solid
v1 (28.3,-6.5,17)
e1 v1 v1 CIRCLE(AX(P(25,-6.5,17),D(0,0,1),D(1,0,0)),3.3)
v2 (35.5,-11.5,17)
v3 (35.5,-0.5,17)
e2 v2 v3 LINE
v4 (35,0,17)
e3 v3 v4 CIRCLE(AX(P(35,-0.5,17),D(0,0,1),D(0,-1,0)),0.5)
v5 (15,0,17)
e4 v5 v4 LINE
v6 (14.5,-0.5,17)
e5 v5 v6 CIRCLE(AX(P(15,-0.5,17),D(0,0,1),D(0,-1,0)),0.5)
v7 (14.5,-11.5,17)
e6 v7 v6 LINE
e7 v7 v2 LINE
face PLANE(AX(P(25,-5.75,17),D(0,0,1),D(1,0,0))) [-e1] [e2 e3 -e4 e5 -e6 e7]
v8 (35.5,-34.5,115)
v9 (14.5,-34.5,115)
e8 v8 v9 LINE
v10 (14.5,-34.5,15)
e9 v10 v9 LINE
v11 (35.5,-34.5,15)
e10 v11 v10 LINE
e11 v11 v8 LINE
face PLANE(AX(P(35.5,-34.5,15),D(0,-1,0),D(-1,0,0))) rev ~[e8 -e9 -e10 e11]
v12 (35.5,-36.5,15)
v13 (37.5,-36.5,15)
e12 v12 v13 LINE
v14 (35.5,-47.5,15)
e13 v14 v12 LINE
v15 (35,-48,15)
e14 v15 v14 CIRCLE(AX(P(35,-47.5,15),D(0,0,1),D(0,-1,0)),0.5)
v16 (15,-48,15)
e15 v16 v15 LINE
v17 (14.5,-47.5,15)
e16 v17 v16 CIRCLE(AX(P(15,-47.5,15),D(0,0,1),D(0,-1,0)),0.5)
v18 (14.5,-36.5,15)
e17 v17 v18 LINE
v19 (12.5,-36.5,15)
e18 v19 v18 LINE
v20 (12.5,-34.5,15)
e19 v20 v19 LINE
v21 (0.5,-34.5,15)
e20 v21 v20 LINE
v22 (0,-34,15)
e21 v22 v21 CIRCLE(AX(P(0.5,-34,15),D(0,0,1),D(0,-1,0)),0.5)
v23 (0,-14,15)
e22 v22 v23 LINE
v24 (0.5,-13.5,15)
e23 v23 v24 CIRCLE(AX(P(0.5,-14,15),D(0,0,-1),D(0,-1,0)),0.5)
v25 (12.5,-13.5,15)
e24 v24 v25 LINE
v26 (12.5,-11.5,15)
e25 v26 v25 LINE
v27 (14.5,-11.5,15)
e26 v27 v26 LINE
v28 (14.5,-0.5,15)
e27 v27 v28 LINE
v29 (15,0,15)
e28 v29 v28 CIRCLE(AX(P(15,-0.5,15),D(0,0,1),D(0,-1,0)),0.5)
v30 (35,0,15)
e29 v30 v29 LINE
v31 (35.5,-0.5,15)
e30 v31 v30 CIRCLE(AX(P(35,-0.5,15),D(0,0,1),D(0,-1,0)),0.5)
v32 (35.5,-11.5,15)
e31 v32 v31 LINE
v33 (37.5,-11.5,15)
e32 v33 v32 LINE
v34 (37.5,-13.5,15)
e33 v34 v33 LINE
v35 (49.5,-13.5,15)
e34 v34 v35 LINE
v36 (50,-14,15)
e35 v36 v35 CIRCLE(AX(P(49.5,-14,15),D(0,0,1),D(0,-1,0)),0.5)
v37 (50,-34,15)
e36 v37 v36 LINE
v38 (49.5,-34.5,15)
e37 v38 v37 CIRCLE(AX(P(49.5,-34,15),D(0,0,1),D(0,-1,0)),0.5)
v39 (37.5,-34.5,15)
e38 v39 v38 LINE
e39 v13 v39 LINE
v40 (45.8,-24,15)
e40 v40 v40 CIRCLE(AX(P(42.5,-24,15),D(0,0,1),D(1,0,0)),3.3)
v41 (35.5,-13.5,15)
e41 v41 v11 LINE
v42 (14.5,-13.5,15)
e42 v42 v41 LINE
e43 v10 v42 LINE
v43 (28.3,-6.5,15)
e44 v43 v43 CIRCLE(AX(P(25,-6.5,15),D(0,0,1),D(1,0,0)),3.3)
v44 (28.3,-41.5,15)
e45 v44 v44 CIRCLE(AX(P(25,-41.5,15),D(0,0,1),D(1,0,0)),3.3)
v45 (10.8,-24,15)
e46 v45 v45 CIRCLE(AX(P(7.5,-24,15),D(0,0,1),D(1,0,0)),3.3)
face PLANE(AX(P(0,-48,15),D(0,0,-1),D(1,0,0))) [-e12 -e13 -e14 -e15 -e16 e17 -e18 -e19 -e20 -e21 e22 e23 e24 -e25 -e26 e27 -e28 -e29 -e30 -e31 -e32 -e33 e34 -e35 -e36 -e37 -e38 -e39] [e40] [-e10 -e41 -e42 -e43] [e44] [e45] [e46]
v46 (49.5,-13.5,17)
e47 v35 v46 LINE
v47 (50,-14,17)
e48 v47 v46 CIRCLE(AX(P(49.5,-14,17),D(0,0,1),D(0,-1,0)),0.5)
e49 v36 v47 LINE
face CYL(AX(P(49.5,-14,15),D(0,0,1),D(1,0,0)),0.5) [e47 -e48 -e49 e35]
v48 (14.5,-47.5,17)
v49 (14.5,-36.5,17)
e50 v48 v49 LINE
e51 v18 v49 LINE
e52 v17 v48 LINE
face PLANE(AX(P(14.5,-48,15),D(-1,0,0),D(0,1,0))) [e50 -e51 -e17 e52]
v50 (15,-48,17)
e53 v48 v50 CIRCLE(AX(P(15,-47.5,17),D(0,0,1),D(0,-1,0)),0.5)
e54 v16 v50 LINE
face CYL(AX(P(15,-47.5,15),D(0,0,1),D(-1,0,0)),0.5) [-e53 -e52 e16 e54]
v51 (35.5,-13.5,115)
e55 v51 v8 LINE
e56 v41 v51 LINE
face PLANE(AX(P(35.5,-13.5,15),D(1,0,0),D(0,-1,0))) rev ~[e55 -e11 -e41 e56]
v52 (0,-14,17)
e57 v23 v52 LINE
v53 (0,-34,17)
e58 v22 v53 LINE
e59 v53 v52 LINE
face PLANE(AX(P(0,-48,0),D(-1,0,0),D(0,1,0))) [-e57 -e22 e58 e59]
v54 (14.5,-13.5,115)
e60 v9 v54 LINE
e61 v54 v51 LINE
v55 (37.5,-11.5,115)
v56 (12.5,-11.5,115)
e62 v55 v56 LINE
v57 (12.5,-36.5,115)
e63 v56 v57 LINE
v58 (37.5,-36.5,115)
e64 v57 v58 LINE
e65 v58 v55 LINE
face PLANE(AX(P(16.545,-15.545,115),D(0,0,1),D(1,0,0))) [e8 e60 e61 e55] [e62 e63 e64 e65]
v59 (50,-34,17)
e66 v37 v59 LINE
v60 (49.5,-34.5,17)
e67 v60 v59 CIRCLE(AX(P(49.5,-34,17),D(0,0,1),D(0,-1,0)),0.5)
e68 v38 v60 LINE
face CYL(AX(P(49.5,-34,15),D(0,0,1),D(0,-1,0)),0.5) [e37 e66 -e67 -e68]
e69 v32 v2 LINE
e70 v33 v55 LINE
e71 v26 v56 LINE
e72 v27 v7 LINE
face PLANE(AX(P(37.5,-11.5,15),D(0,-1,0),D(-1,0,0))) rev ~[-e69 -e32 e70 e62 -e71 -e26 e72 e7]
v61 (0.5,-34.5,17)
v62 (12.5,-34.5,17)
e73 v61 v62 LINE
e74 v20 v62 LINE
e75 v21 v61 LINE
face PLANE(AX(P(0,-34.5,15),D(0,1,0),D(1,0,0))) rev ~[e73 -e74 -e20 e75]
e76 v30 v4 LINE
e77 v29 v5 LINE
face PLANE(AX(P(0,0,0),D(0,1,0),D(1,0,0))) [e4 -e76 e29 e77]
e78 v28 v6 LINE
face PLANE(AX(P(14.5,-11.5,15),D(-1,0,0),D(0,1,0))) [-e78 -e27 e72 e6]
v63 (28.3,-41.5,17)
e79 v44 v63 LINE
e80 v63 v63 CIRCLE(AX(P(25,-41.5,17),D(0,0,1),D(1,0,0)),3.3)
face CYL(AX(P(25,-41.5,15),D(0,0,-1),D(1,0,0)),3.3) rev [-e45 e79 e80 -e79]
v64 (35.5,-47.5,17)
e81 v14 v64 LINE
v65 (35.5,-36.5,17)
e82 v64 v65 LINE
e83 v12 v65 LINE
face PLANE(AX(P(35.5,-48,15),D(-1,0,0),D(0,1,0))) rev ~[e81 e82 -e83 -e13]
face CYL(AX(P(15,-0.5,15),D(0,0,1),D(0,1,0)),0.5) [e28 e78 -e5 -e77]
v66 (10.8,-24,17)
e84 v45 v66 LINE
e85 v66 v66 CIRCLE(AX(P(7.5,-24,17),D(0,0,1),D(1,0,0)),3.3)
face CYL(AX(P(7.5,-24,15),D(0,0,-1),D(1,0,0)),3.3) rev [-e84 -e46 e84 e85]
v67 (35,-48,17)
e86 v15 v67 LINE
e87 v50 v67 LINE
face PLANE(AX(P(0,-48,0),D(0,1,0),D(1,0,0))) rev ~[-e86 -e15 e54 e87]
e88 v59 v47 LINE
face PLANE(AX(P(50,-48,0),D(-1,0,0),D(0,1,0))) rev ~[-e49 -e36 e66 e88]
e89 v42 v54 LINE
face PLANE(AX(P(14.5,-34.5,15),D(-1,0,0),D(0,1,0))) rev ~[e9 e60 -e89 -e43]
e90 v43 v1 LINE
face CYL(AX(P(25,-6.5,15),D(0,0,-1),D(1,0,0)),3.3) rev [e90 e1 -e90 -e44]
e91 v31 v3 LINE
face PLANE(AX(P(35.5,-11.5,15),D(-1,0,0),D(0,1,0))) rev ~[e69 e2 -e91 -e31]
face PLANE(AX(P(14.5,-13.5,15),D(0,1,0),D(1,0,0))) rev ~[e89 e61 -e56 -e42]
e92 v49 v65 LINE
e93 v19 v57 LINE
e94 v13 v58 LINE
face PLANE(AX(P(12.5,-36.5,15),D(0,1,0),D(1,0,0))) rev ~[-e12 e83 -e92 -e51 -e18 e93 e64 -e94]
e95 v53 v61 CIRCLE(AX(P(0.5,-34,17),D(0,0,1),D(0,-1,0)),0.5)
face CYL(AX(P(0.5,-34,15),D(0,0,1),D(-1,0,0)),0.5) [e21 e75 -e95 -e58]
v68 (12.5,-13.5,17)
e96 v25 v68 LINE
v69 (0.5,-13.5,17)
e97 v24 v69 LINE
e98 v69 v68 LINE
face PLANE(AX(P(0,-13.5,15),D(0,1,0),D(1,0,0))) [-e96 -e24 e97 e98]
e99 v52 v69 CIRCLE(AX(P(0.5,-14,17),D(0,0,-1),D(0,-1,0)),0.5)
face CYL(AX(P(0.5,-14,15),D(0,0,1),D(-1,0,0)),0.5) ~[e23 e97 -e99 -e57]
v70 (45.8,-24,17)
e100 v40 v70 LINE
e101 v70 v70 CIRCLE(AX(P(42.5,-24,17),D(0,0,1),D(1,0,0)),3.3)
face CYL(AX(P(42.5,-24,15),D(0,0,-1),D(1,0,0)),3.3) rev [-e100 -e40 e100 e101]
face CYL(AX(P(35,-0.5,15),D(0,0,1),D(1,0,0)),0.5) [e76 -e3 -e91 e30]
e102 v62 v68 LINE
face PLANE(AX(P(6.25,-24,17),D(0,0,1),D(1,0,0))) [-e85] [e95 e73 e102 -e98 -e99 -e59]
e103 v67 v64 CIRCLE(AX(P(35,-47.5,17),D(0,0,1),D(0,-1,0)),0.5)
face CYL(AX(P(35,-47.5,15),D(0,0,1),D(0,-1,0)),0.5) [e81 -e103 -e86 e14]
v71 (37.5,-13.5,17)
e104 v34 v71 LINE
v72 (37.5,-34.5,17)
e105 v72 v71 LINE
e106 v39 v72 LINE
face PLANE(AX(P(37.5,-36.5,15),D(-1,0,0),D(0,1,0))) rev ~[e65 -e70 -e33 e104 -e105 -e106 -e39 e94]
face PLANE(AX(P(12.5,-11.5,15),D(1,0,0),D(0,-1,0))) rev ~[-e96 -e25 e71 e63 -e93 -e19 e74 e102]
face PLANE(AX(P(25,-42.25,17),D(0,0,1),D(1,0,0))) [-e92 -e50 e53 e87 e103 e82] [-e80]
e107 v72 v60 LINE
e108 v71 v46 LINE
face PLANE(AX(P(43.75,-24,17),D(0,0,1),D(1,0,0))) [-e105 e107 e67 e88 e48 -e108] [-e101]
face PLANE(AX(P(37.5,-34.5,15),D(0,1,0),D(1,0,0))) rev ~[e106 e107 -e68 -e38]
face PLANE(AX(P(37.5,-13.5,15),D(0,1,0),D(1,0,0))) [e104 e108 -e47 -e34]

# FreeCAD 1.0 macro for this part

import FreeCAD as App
import Part
import Sketcher
Q = App.Units.Quantity


def edges_at(feature, points):
    """Names of the edges that pass closest to the given points."""
    edges = feature.Shape.Edges
    near = lambda p: min(range(len(edges)), key=lambda i: edges[i].distToShape(Part.Vertex(*p))[0])
    return sorted({f"Edge{near(p) + 1}" for p in points})


def add_polygon(sketch, points):
    """Adds a closed chain of lines whose ends are joined by coincident constraints."""
    first, n = sketch.GeometryCount, len(points)
    for a, b in zip(points, points[1:] + points[:1]):
        sketch.addGeometry(Part.LineSegment(App.Vector(*a, 0), App.Vector(*b, 0)), False)
    for i in range(n):
        sketch.addConstraint(Sketcher.Constraint("Coincident", first + i, 2, first + (i + 1) % n, 1))

doc = App.newDocument("Part")
params = doc.addObject("Spreadsheet::Sheet", "Params")
for row, (alias, value) in enumerate([
    ("sketch1_width", "50 mm"),
    ("sketch1_height", "48 mm"),
    ("pad1_length", "15 mm"),
    ("sketch2_height", "15 mm"),
    ("sketch2_height2", "9 mm"),
    ("sketch2_width", "2.25 mm"),
    ("groove_angle", "360 deg"),
    ("linearpattern_pitch", "35 mm"),
    ("linearpattern2_pitch", "49.497475 mm"),
    ("linearpattern3_pitch", "35 mm"),
    ("fillet_radius", "1 mm"),
    ("sketch3_width", "3 mm"),
    ("sketch3_height", "15 mm"),
    ("sketch3_height2", "5 mm"),
    ("sketch3_width2", "4.5 mm"),
    ("groove2_angle", "360 deg"),
    ("sketch4_width", "25 mm"),
    ("sketch4_width2", "21 mm"),
    ("pad2_length", "100 mm"),
    ("sketch5_diameter", "6.6 mm"),
    ("sketch5_width", "21 mm"),
    ("sketch5_width2", "12.5 mm"),
    ("sketch5_height", "11.5 mm"),
    ("pad3_length", "2 mm"),
    ("sketch6_width", "50 mm"),
    ("sketch6_height", "15 mm"),
    ("fillet2_radius", "0.5 mm"),
], start=1):
    params.set(f"A{row}", alias)
    params.set(f"B{row}", "=" + value)
    params.setAlias(f"B{row}", alias)

body = doc.addObject("PartDesign::Body", "Body")

# Sketch on XY plane
sketch1 = body.newObject("Sketcher::SketchObject", "Sketch")
sketch1.AttachmentSupport = (doc.getObject("XY_Plane"), [""])
sketch1.MapMode = "FlatFace"
add_polygon(sketch1, [(0, 0), (0, -48), (50, -48), (50, 0)])  # lines 0-3
sketch1.addConstraint([
    Sketcher.Constraint("Vertical", 0),
    Sketcher.Constraint("Horizontal", 1),
    Sketcher.Constraint("Vertical", 2),
    Sketcher.Constraint("Horizontal", 3),
    Sketcher.Constraint("Coincident", 3, 2, -1, 1),
    Sketcher.Constraint("DistanceX", 1, 1, 1, 2, 50.0),
    Sketcher.Constraint("DistanceY", 0, 2, 0, 1, 48.0),
])
sketch1.setExpression("Constraints[9]", "Params.sketch1_width")
sketch1.setExpression("Constraints[10]", "Params.sketch1_height")
pad1 = body.newObject("PartDesign::Pad", "Pad")
pad1.Profile = sketch1
pad1.setExpression("Length", "Params.pad1_length")

# Sketch on YZ plane
sketch2 = body.newObject("Sketcher::SketchObject", "Sketch001")
sketch2.AttachmentSupport = (doc.getObject("YZ_Plane"), [""])
sketch2.MapMode = "FlatFace"
sketch2.AttachmentOffset = App.Placement(App.Vector(0, 0, 7.5), App.Rotation())
add_polygon(sketch2, [(-6.5, 0), (-6.5, 15), (-11.525, 15), (-11.5, 14.975), (-11.5, 9), (-9.25, 9), (-9.25, 0)])  # lines 0-6
sketch2.addGeometry(Part.LineSegment(App.Vector(-6.5, 15, 0), App.Vector(-6.5, 0, 0)), True)  # axis
sketch2.addConstraint([
    Sketcher.Constraint("Vertical", 0),
    Sketcher.Constraint("Horizontal", 1),
    Sketcher.Constraint("Vertical", 3),
    Sketcher.Constraint("Horizontal", 4),
    Sketcher.Constraint("Vertical", 5),
    Sketcher.Constraint("Horizontal", 6),
    Sketcher.Constraint("Vertical", 7),
    Sketcher.Constraint("Coincident", 7, 1, 0, 2),
    Sketcher.Constraint("PointOnObject", 5, 2, -1),
    Sketcher.Constraint("PointOnObject", 7, 2, -1),
    Sketcher.Constraint("DistanceY", 0, 1, 0, 2, 15.0),
    Sketcher.Constraint("DistanceY", 5, 2, 5, 1, 9.0),
    Sketcher.Constraint("Angle", 2, Q("-45 deg")),
    Sketcher.Constraint("DistanceX", 2, 2, 0, 2, 5.0),
    Sketcher.Constraint("DistanceX", 4, 1, 4, 2, 2.25),
    Sketcher.Constraint("DistanceX", 0, 2, -1, 1, 6.5),
    Sketcher.Constraint("DistanceX", 1, 2, 1, 1, 5.025),
])
sketch2.setExpression("Constraints[17]", "Params.sketch2_height")
sketch2.setExpression("Constraints[18]", "Params.sketch2_height2")
sketch2.setExpression("Constraints[21]", "Params.sketch2_width")
groove = body.newObject("PartDesign::Groove", "Groove")
groove.Profile = sketch2
groove.ReferenceAxis = (sketch2, ["Axis0"])
groove.setExpression("Angle", "Params.groove_angle")
doc.recompute()

linearpattern = body.newObject("PartDesign::LinearPattern", "LinearPattern")
linearpattern.Originals = [groove]
linearpattern.Direction = (doc.getObject("X_Axis"), [""])
linearpattern.Mode = "offset"
linearpattern.setExpression("Offset", "Params.linearpattern_pitch")
linearpattern.Occurrences = 2
body.Tip = linearpattern
doc.recompute()

datumline = body.newObject("PartDesign::Line", "DatumLine")
datumline.Placement = App.Placement(App.Vector(0, 0, 0), App.Rotation(App.Vector(0, 0, 1), App.Vector(0.707106781, -0.707106781, 0)))
linearpattern2 = body.newObject("PartDesign::LinearPattern", "LinearPattern001")
linearpattern2.Originals = [groove]
linearpattern2.Direction = (datumline, [""])
linearpattern2.Mode = "offset"
linearpattern2.setExpression("Offset", "Params.linearpattern2_pitch")
linearpattern2.Occurrences = 2
body.Tip = linearpattern2
doc.recompute()

linearpattern3 = body.newObject("PartDesign::LinearPattern", "LinearPattern002")
linearpattern3.Originals = [groove]
linearpattern3.Direction = (doc.getObject("Y_Axis"), [""])
linearpattern3.Mode = "offset"
linearpattern3.setExpression("Offset", "Params.linearpattern3_pitch")
linearpattern3.Occurrences = 2
linearpattern3.Reversed = True
body.Tip = linearpattern3
doc.recompute()

fillet = body.newObject("PartDesign::Fillet", "Fillet")
fillet.Base = (linearpattern3, edges_at(linearpattern3, [
    (0, 0, 7.5),
    (50, 0, 7.5),
    (50, -48, 7.5),
    (0, -48, 7.5),
]))
fillet.setExpression("Radius", "Params.fillet_radius")

# Sketch on YZ plane
sketch3 = body.newObject("Sketcher::SketchObject", "Sketch002")
sketch3.AttachmentSupport = (doc.getObject("YZ_Plane"), [""])
sketch3.MapMode = "FlatFace"
sketch3.AttachmentOffset = App.Placement(App.Vector(0, 0, 25), App.Rotation())
add_polygon(sketch3, [(-24, 15), (-24, 0), (-16.475, 0), (-16.5, 0.025), (-16.5, 10), (-19.5, 10), (-19.5, 15)])  # lines 0-6
sketch3.addGeometry(Part.LineSegment(App.Vector(-24, 0, 0), App.Vector(-24, 15, 0)), True)  # axis
sketch3.addConstraint([
    Sketcher.Constraint("Vertical", 0),
    Sketcher.Constraint("Horizontal", 1),
    Sketcher.Constraint("Vertical", 3),
    Sketcher.Constraint("Horizontal", 4),
    Sketcher.Constraint("Vertical", 5),
    Sketcher.Constraint("Horizontal", 6),
    Sketcher.Constraint("Vertical", 7),
    Sketcher.Constraint("Coincident", 7, 1, 0, 2),
    Sketcher.Constraint("PointOnObject", 0, 2, -1),
    Sketcher.Constraint("Horizontal", 5, 2, 7, 2),
    Sketcher.Constraint("DistanceX", 4, 2, 4, 1, 3.0),
    Sketcher.Constraint("DistanceY", 0, 2, 0, 1, 15.0),
    Sketcher.Constraint("DistanceY", 5, 1, 5, 2, 5.0),
    Sketcher.Constraint("Angle", 2, Q("135 deg")),
    Sketcher.Constraint("DistanceX", 6, 2, 6, 1, 4.5),
    Sketcher.Constraint("DistanceX", 0, 2, -1, 1, 24.0),
    Sketcher.Constraint("DistanceX", 1, 1, 1, 2, 7.525),
])
sketch3.setExpression("Constraints[17]", "Params.sketch3_width")
sketch3.setExpression("Constraints[18]", "Params.sketch3_height")
sketch3.setExpression("Constraints[19]", "Params.sketch3_height2")
sketch3.setExpression("Constraints[21]", "Params.sketch3_width2")
groove2 = body.newObject("PartDesign::Groove", "Groove001")
groove2.Profile = sketch3
groove2.ReferenceAxis = (sketch3, ["Axis0"])
groove2.setExpression("Angle", "Params.groove2_angle")

# Sketch on XY plane
sketch4 = body.newObject("Sketcher::SketchObject", "Sketch003")
sketch4.AttachmentSupport = (doc.getObject("XY_Plane"), [""])
sketch4.MapMode = "FlatFace"
sketch4.AttachmentOffset = App.Placement(App.Vector(0, 0, 15), App.Rotation())
add_polygon(sketch4, [(12.5, -11.5), (12.5, -36.5), (37.5, -36.5), (37.5, -11.5)])  # lines 0-3
add_polygon(sketch4, [(14.5, -13.5), (35.5, -13.5), (35.5, -34.5), (14.5, -34.5)])  # lines 4-7
sketch4.addConstraint([
    Sketcher.Constraint("Vertical", 0),
    Sketcher.Constraint("Horizontal", 1),
    Sketcher.Constraint("Vertical", 2),
    Sketcher.Constraint("Horizontal", 3),
    Sketcher.Constraint("Horizontal", 4),
    Sketcher.Constraint("Vertical", 5),
    Sketcher.Constraint("Horizontal", 6),
    Sketcher.Constraint("Vertical", 7),
    Sketcher.Constraint("Equal", 3, 0),
    Sketcher.Constraint("Equal", 6, 5),
    Sketcher.Constraint("DistanceX", 1, 1, 1, 2, 25.0),
    Sketcher.Constraint("DistanceX", 4, 1, 4, 2, 21.0),
    Sketcher.Constraint("DistanceX", 4, 2, 2, 2, 2.0),
    Sketcher.Constraint("DistanceY", 4, 2, 2, 2, 2.0),
    Sketcher.Constraint("DistanceX", -1, 1, 0, 2, 12.5),
    Sketcher.Constraint("DistanceY", 0, 2, -1, 1, 36.5),
])
sketch4.setExpression("Constraints[18]", "Params.sketch4_width")
sketch4.setExpression("Constraints[19]", "Params.sketch4_width2")
pad2 = body.newObject("PartDesign::Pad", "Pad001")
pad2.Profile = sketch4
pad2.setExpression("Length", "Params.pad2_length")

# Sketch on XY plane
sketch5 = body.newObject("Sketcher::SketchObject", "Sketch004")
sketch5.AttachmentSupport = (doc.getObject("XY_Plane"), [""])
sketch5.MapMode = "FlatFace"
sketch5.AttachmentOffset = App.Placement(App.Vector(0, 0, 15), App.Rotation())
add_polygon(sketch5, [(14.5, 0), (14.5, -11.5), (35.5, -11.5), (35.5, 0)])  # lines 0-3
sketch5.addGeometry(Part.Circle(App.Vector(25, -6.5, 0), App.Vector(0, 0, 1), 3.3), False)  # 4
add_polygon(sketch5, [(0, -13.5), (0, -34.5), (12.5, -34.5), (12.5, -13.5)])  # lines 5-8
sketch5.addGeometry(Part.Circle(App.Vector(7.5, -24, 0), App.Vector(0, 0, 1), 3.3), False)  # 9
add_polygon(sketch5, [(14.5, -36.5), (14.5, -48), (35.5, -48), (35.5, -36.5)])  # lines 10-13
sketch5.addGeometry(Part.Circle(App.Vector(25, -41.5, 0), App.Vector(0, 0, 1), 3.3), False)  # 14
add_polygon(sketch5, [(37.5, -13.5), (37.5, -34.5), (50, -34.5), (50, -13.5)])  # lines 15-18
sketch5.addGeometry(Part.Circle(App.Vector(42.5, -24, 0), App.Vector(0, 0, 1), 3.3), False)  # 19
sketch5.addConstraint([
    Sketcher.Constraint("Vertical", 0),
    Sketcher.Constraint("Horizontal", 1),
    Sketcher.Constraint("Vertical", 2),
    Sketcher.Constraint("Horizontal", 3),
    Sketcher.Constraint("Vertical", 5),
    Sketcher.Constraint("Horizontal", 6),
    Sketcher.Constraint("Vertical", 7),
    Sketcher.Constraint("Horizontal", 8),
    Sketcher.Constraint("Vertical", 10),
    Sketcher.Constraint("Horizontal", 11),
    Sketcher.Constraint("Vertical", 12),
    Sketcher.Constraint("Horizontal", 13),
    Sketcher.Constraint("Vertical", 15),
    Sketcher.Constraint("Horizontal", 16),
    Sketcher.Constraint("Vertical", 17),
    Sketcher.Constraint("Horizontal", 18),
    Sketcher.Constraint("Equal", 4, 9),
    Sketcher.Constraint("Equal", 9, 14),
    Sketcher.Constraint("Equal", 14, 19),
    Sketcher.Constraint("PointOnObject", 2, 2, -1),
    Sketcher.Constraint("PointOnObject", 5, 2, -2),
    Sketcher.Constraint("Horizontal", 9, 3, 19, 3),
    Sketcher.Constraint("Horizontal", 6, 2, 15, 2),
    Sketcher.Constraint("Horizontal", 8, 2, 17, 2),
    Sketcher.Constraint("Vertical", 4, 3, 14, 3),
    Sketcher.Constraint("Vertical", 3, 2, 10, 2),
    Sketcher.Constraint("Vertical", 2, 2, 11, 2),
    Sketcher.Constraint("Equal", 8, 16),
    Sketcher.Constraint("Equal", 13, 5),
    Sketcher.Constraint("Equal", 2, 10),
    Sketcher.Constraint("Diameter", 4, 6.6),
    Sketcher.Constraint("DistanceX", 1, 1, 1, 2, 21.0),
    Sketcher.Constraint("DistanceX", 6, 1, 6, 2, 12.5),
    Sketcher.Constraint("DistanceY", 0, 2, 0, 1, 11.5),
    Sketcher.Constraint("DistanceX", -1, 1, 4, 3, 25.0),
    Sketcher.Constraint("DistanceY", 9, 3, -1, 1, 24.0),
    Sketcher.Constraint("DistanceY", 10, 2, -1, 1, 48.0),
    Sketcher.Constraint("DistanceX", -1, 1, 16, 2, 50.0),
    Sketcher.Constraint("DistanceY", 14, 3, 4, 3, 35.0),
    Sketcher.Constraint("DistanceX", 9, 3, 19, 3, 35.0),
    Sketcher.Constraint("DistanceY", 0, 2, 4, 3, 5.0),
    Sketcher.Constraint("DistanceX", 9, 3, 0, 2, 7.0),
    Sketcher.Constraint("DistanceY", 14, 3, 5, 2, 7.0),
    Sketcher.Constraint("DistanceX", 9, 3, 6, 2, 5.0),
])
sketch5.setExpression("Constraints[46]", "Params.sketch5_diameter")
sketch5.setExpression("Constraints[47]", "Params.sketch5_width")
sketch5.setExpression("Constraints[48]", "Params.sketch5_width2")
sketch5.setExpression("Constraints[49]", "Params.sketch5_height")
pad3 = body.newObject("PartDesign::Pad", "Pad002")
pad3.Profile = sketch5
pad3.setExpression("Length", "Params.pad3_length")

# Sketch on XZ plane
sketch6 = body.newObject("Sketcher::SketchObject", "Sketch005")
sketch6.AttachmentSupport = (doc.getObject("XZ_Plane"), [""])
sketch6.MapMode = "FlatFace"
sketch6.AttachmentOffset = App.Placement(App.Vector(0, 0, 48), App.Rotation())
add_polygon(sketch6, [(0, 15), (0, 0), (50, 0), (50, 15)])  # lines 0-3
sketch6.addConstraint([
    Sketcher.Constraint("Vertical", 0),
    Sketcher.Constraint("Horizontal", 1),
    Sketcher.Constraint("Vertical", 2),
    Sketcher.Constraint("Horizontal", 3),
    Sketcher.Constraint("Coincident", 0, 2, -1, 1),
    Sketcher.Constraint("DistanceX", 1, 1, 1, 2, 50.0),
    Sketcher.Constraint("DistanceY", 0, 2, 0, 1, 15.0),
])
sketch6.setExpression("Constraints[9]", "Params.sketch6_width")
sketch6.setExpression("Constraints[10]", "Params.sketch6_height")
pocket1 = body.newObject("PartDesign::Pocket", "Pocket")
pocket1.Profile = sketch6
pocket1.Type = "ThroughAll"
doc.recompute()

fillet2 = body.newObject("PartDesign::Fillet", "Fillet001")
fillet2.Base = (pocket1, edges_at(pocket1, [
    (0, -34.5, 16),
    (0, -13.5, 16),
    (35.5, -48, 16),
    (14.5, -48, 16),
    (50, -13.5, 16),
    (50, -34.5, 16),
    (14.5, 0, 16),
    (35.5, 0, 16),
]))
fillet2.setExpression("Radius", "Params.fillet2_radius")

doc.recompute()
